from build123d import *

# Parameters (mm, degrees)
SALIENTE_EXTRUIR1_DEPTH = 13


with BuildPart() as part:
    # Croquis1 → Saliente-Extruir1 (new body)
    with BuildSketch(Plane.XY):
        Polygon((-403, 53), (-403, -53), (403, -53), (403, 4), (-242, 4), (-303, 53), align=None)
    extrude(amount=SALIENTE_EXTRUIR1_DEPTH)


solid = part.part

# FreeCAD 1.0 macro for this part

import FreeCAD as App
import Part
import Sketcher
Q = App.Units.Quantity


def add_polygon(sketch, points):
    """Adds a closed chain of lines whose ends are joined by coincident constraints."""
    first, n = sketch.GeometryCount, len(points)
    for a, b in zip(points, points[1:] + points[:1]):
        sketch.addGeometry(Part.LineSegment(App.Vector(*a, 0), App.Vector(*b, 0)), False)
    for i in range(n):
        sketch.addConstraint(Sketcher.Constraint("Coincident", first + i, 2, first + (i + 1) % n, 1))

doc = App.newDocument("Part")
body = doc.addObject("PartDesign::Body", "Body")

# Sketch on XY plane
sketch1 = body.newObject("Sketcher::SketchObject", "Sketch")
sketch1.AttachmentSupport = (doc.getObject("XY_Plane"), [""])
sketch1.MapMode = "FlatFace"
add_polygon(sketch1, [(-403, 53), (-403, -53), (403, -53), (403, 4), (-242, 4), (-303, 53)])  # lines 0-5
sketch1.addConstraint(Sketcher.Constraint("Vertical", 0))
sketch1.addConstraint(Sketcher.Constraint("Horizontal", 1))
sketch1.addConstraint(Sketcher.Constraint("Vertical", 2))
sketch1.addConstraint(Sketcher.Constraint("Horizontal", 3))
sketch1.addConstraint(Sketcher.Constraint("Horizontal", 5))
sketch1.addConstraint(Sketcher.Constraint("Symmetric", 1, 2, 5, 2, -1, 1))
sketch1.addConstraint(Sketcher.Constraint("DistanceX", 1, 1, 1, 2, Q("806 mm")))
sketch1.addConstraint(Sketcher.Constraint("DistanceX", 3, 2, 3, 1, Q("645 mm")))
sketch1.addConstraint(Sketcher.Constraint("DistanceX", 5, 2, 5, 1, Q("100 mm")))
sketch1.addConstraint(Sketcher.Constraint("DistanceY", 0, 2, 0, 1, Q("106 mm")))
sketch1.addConstraint(Sketcher.Constraint("DistanceY", 2, 1, 2, 2, Q("57 mm")))
pad1 = body.newObject("PartDesign::Pad", "Pad")
pad1.Profile = sketch1
pad1.Length = 13

doc.recompute()
